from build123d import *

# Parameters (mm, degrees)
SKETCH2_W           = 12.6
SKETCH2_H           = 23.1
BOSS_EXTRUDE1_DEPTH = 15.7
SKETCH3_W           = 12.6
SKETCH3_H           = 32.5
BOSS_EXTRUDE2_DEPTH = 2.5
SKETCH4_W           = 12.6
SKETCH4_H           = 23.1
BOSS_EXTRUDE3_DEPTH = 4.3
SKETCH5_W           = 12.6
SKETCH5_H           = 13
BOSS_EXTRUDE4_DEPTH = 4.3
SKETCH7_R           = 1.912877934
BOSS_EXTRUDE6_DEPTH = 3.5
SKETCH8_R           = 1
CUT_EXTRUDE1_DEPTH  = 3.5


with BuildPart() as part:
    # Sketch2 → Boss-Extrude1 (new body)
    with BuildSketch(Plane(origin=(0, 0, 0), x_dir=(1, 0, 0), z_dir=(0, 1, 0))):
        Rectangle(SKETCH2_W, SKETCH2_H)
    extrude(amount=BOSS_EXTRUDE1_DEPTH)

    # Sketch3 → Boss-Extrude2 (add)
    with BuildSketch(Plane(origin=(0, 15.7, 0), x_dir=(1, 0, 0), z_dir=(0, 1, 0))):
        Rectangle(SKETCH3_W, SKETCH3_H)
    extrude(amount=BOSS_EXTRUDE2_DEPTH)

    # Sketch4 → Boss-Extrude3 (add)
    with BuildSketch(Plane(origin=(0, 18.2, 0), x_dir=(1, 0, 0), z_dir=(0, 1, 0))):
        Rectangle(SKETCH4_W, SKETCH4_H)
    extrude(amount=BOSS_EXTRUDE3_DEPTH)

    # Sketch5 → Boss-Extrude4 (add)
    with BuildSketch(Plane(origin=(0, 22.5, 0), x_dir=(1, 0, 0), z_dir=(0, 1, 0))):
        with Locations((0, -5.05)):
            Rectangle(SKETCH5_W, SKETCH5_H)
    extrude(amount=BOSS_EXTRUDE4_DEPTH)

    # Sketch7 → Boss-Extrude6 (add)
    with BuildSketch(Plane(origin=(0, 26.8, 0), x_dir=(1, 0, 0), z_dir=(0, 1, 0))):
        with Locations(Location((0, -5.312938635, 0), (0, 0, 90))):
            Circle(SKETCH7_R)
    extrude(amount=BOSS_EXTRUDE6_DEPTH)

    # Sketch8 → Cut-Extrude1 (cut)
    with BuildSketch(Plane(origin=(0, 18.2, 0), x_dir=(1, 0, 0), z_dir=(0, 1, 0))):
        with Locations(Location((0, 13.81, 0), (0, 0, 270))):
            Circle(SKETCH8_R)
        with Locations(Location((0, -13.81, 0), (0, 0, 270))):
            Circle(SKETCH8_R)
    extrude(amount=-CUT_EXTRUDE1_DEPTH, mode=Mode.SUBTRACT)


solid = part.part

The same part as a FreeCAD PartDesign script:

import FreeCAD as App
import Part
import Sketcher

V = App.Vector
Q = App.Units.Quantity

doc = App.newDocument("Part")
body = doc.addObject("PartDesign::Body", "Body")

# Sketch on XZ plane
sketch1 = doc.addObject("Sketcher::SketchObject", "Sketch")
body.addObject(sketch1)
sketch1.AttachmentSupport = (doc.XZ_Plane, [""])
sketch1.MapMode = "FlatFace"
sketch1.addGeometry(Part.LineSegment(V(-6, -12, 0), V(-6, 12, 0)), False)
sketch1.addGeometry(Part.LineSegment(V(-6, 12, 0), V(6, 12, 0)), False)
sketch1.addGeometry(Part.LineSegment(V(6, 12, 0), V(6, -12, 0)), False)
sketch1.addGeometry(Part.LineSegment(V(6, -12, 0), V(-6, -12, 0)), False)
sketch1.addConstraint(Sketcher.Constraint("Coincident", 0, 2, 1, 1))
sketch1.addConstraint(Sketcher.Constraint("Coincident", 1, 2, 2, 1))
sketch1.addConstraint(Sketcher.Constraint("Coincident", 2, 2, 3, 1))
sketch1.addConstraint(Sketcher.Constraint("Coincident", 3, 2, 0, 1))
sketch1.addConstraint(Sketcher.Constraint("Vertical", 0))
sketch1.addConstraint(Sketcher.Constraint("Horizontal", 1))
sketch1.addConstraint(Sketcher.Constraint("Vertical", 2))
sketch1.addConstraint(Sketcher.Constraint("Horizontal", 3))
sketch1.addConstraint(Sketcher.Constraint("Symmetric", 0, 2, 2, 2, -1, 1))
sketch1.addConstraint(Sketcher.Constraint("DistanceX", 1, 1, 1, 2, Q("12.6 mm")))
sketch1.addConstraint(Sketcher.Constraint("DistanceY", 0, 1, 0, 2, Q("23.1 mm")))
pad1 = doc.addObject("PartDesign::Pad", "Pad")
body.addObject(pad1)
pad1.Profile = sketch1
pad1.Length = 15.7
pad1.Reversed = True

# Sketch on XZ plane
sketch2 = doc.addObject("Sketcher::SketchObject", "Sketch001")
body.addObject(sketch2)
sketch2.AttachmentSupport = (doc.XZ_Plane, [""])
sketch2.MapMode = "FlatFace"
sketch2.AttachmentOffset = App.Placement(V(0, 0, -15.7), App.Rotation())
sketch2.addGeometry(Part.LineSegment(V(-6, -16, 0), V(-6, 16, 0)), False)
sketch2.addGeometry(Part.LineSegment(V(-6, 16, 0), V(6, 16, 0)), False)
sketch2.addGeometry(Part.LineSegment(V(6, 16, 0), V(6, -16, 0)), False)
sketch2.addGeometry(Part.LineSegment(V(6, -16, 0), V(-6, -16, 0)), False)
sketch2.addConstraint(Sketcher.Constraint("Coincident", 0, 2, 1, 1))
sketch2.addConstraint(Sketcher.Constraint("Coincident", 1, 2, 2, 1))
sketch2.addConstraint(Sketcher.Constraint("Coincident", 2, 2, 3, 1))
sketch2.addConstraint(Sketcher.Constraint("Coincident", 3, 2, 0, 1))
sketch2.addConstraint(Sketcher.Constraint("Vertical", 0))
sketch2.addConstraint(Sketcher.Constraint("Horizontal", 1))
sketch2.addConstraint(Sketcher.Constraint("Vertical", 2))
sketch2.addConstraint(Sketcher.Constraint("Horizontal", 3))
sketch2.addConstraint(Sketcher.Constraint("Symmetric", 0, 2, 2, 2, -1, 1))
sketch2.addConstraint(Sketcher.Constraint("DistanceX", 1, 1, 1, 2, Q("12.6 mm")))
sketch2.addConstraint(Sketcher.Constraint("DistanceY", 0, 1, 0, 2, Q("32.5 mm")))
pad2 = doc.addObject("PartDesign::Pad", "Pad001")
body.addObject(pad2)
pad2.Profile = sketch2
pad2.Length = 2.5
pad2.Reversed = True

# Sketch on XZ plane
sketch3 = doc.addObject("Sketcher::SketchObject", "Sketch002")
body.addObject(sketch3)
sketch3.AttachmentSupport = (doc.XZ_Plane, [""])
sketch3.MapMode = "FlatFace"
sketch3.AttachmentOffset = App.Placement(V(0, 0, -18.2), App.Rotation())
sketch3.addGeometry(Part.LineSegment(V(-6, -12, 0), V(-6, 12, 0)), False)
sketch3.addGeometry(Part.LineSegment(V(-6, 12, 0), V(6, 12, 0)), False)
sketch3.addGeometry(Part.LineSegment(V(6, 12, 0), V(6, -12, 0)), False)
sketch3.addGeometry(Part.LineSegment(V(6, -12, 0), V(-6, -12, 0)), False)
sketch3.addConstraint(Sketcher.Constraint("Coincident", 0, 2, 1, 1))
sketch3.addConstraint(Sketcher.Constraint("Coincident", 1, 2, 2, 1))
sketch3.addConstraint(Sketcher.Constraint("Coincident", 2, 2, 3, 1))
sketch3.addConstraint(Sketcher.Constraint("Coincident", 3, 2, 0, 1))
sketch3.addConstraint(Sketcher.Constraint("Vertical", 0))
sketch3.addConstraint(Sketcher.Constraint("Horizontal", 1))
sketch3.addConstraint(Sketcher.Constraint("Vertical", 2))
sketch3.addConstraint(Sketcher.Constraint("Horizontal", 3))
sketch3.addConstraint(Sketcher.Constraint("Symmetric", 0, 2, 2, 2, -1, 1))
sketch3.addConstraint(Sketcher.Constraint("DistanceX", 1, 1, 1, 2, Q("12.6 mm")))
sketch3.addConstraint(Sketcher.Constraint("DistanceY", 0, 1, 0, 2, Q("23.1 mm")))
pad3 = doc.addObject("PartDesign::Pad", "Pad002")
body.addObject(pad3)
pad3.Profile = sketch3
pad3.Length = 4.3
pad3.Reversed = True

# Sketch on XZ plane
sketch4 = doc.addObject("Sketcher::SketchObject", "Sketch003")
body.addObject(sketch4)
sketch4.AttachmentSupport = (doc.XZ_Plane, [""])
sketch4.MapMode = "FlatFace"
sketch4.AttachmentOffset = App.Placement(V(0, 0, -22.5), App.Rotation())
sketch4.addGeometry(Part.LineSegment(V(-6, -1, 0), V(-6, 12, 0)), False)
sketch4.addGeometry(Part.LineSegment(V(-6, 12, 0), V(6, 12, 0)), False)
sketch4.addGeometry(Part.LineSegment(V(6, 12, 0), V(6, -1, 0)), False)
sketch4.addGeometry(Part.LineSegment(V(6, -1, 0), V(-6, -1, 0)), False)
sketch4.addConstraint(Sketcher.Constraint("Coincident", 0, 2, 1, 1))
sketch4.addConstraint(Sketcher.Constraint("Coincident", 1, 2, 2, 1))
sketch4.addConstraint(Sketcher.Constraint("Coincident", 2, 2, 3, 1))
sketch4.addConstraint(Sketcher.Constraint("Coincident", 3, 2, 0, 1))
sketch4.addConstraint(Sketcher.Constraint("Vertical", 0))
sketch4.addConstraint(Sketcher.Constraint("Horizontal", 1))
sketch4.addConstraint(Sketcher.Constraint("Vertical", 2))
sketch4.addConstraint(Sketcher.Constraint("Horizontal", 3))
sketch4.addConstraint(Sketcher.Constraint("DistanceY", 0, 1, 0, 2, Q("13 mm")))
sketch4.addConstraint(Sketcher.Constraint("DistanceX", 1, 1, 1, 2, Q("12.6 mm")))
sketch4.addConstraint(Sketcher.Constraint("DistanceX", 0, 2, -1, 1, Q("6.3 mm")))
sketch4.addConstraint(Sketcher.Constraint("DistanceY", -1, 1, 0, 2, Q("11.55 mm")))
pad4 = doc.addObject("PartDesign::Pad", "Pad003")
body.addObject(pad4)
pad4.Profile = sketch4
pad4.Length = 4.3
pad4.Reversed = True

# Sketch on XZ plane
sketch5 = doc.addObject("Sketcher::SketchObject", "Sketch004")
body.addObject(sketch5)
sketch5.AttachmentSupport = (doc.XZ_Plane, [""])
sketch5.MapMode = "FlatFace"
sketch5.AttachmentOffset = App.Placement(V(0, 0, -26.8), App.Rotation())
sketch5.addGeometry(Part.Circle(V(0, 5.3, 0), V(0, 0, 1), 1.9), False)
sketch5.addConstraint(Sketcher.Constraint("PointOnObject", 0, 3, -2))
sketch5.addConstraint(Sketcher.Constraint("Diameter", 0, Q("3.825756 mm")))
sketch5.addConstraint(Sketcher.Constraint("DistanceY", -1, 1, 0, 3, Q("5.312939 mm")))
pad5 = doc.addObject("PartDesign::Pad", "Pad004")
body.addObject(pad5)
pad5.Profile = sketch5
pad5.Length = 3.5
pad5.Reversed = True

# Sketch on XZ plane
sketch6 = doc.addObject("Sketcher::SketchObject", "Sketch005")
body.addObject(sketch6)
sketch6.AttachmentSupport = (doc.XZ_Plane, [""])
sketch6.MapMode = "FlatFace"
sketch6.AttachmentOffset = App.Placement(V(0, 0, -18.2), App.Rotation())
sketch6.addGeometry(Part.Circle(V(0, -13.8, 0), V(0, 0, 1), 1), False)
sketch6.addGeometry(Part.Circle(V(0, 13.8, 0), V(0, 0, 1), 1), False)
sketch6.addConstraint(Sketcher.Constraint("Equal", 0, 1))
sketch6.addConstraint(Sketcher.Constraint("Symmetric", 0, 3, 1, 3, -1, 1))
sketch6.addConstraint(Sketcher.Constraint("PointOnObject", 0, 3, -2))
sketch6.addConstraint(Sketcher.Constraint("Diameter", 0, Q("2 mm")))
sketch6.addConstraint(Sketcher.Constraint("DistanceY", 0, 3, -1, 1, Q("13.81 mm")))
pocket1 = doc.addObject("PartDesign::Pocket", "Pocket")
body.addObject(pocket1)
pocket1.Profile = sketch6
pocket1.Length = 3.5
pocket1.Reversed = True

doc.recompute()
